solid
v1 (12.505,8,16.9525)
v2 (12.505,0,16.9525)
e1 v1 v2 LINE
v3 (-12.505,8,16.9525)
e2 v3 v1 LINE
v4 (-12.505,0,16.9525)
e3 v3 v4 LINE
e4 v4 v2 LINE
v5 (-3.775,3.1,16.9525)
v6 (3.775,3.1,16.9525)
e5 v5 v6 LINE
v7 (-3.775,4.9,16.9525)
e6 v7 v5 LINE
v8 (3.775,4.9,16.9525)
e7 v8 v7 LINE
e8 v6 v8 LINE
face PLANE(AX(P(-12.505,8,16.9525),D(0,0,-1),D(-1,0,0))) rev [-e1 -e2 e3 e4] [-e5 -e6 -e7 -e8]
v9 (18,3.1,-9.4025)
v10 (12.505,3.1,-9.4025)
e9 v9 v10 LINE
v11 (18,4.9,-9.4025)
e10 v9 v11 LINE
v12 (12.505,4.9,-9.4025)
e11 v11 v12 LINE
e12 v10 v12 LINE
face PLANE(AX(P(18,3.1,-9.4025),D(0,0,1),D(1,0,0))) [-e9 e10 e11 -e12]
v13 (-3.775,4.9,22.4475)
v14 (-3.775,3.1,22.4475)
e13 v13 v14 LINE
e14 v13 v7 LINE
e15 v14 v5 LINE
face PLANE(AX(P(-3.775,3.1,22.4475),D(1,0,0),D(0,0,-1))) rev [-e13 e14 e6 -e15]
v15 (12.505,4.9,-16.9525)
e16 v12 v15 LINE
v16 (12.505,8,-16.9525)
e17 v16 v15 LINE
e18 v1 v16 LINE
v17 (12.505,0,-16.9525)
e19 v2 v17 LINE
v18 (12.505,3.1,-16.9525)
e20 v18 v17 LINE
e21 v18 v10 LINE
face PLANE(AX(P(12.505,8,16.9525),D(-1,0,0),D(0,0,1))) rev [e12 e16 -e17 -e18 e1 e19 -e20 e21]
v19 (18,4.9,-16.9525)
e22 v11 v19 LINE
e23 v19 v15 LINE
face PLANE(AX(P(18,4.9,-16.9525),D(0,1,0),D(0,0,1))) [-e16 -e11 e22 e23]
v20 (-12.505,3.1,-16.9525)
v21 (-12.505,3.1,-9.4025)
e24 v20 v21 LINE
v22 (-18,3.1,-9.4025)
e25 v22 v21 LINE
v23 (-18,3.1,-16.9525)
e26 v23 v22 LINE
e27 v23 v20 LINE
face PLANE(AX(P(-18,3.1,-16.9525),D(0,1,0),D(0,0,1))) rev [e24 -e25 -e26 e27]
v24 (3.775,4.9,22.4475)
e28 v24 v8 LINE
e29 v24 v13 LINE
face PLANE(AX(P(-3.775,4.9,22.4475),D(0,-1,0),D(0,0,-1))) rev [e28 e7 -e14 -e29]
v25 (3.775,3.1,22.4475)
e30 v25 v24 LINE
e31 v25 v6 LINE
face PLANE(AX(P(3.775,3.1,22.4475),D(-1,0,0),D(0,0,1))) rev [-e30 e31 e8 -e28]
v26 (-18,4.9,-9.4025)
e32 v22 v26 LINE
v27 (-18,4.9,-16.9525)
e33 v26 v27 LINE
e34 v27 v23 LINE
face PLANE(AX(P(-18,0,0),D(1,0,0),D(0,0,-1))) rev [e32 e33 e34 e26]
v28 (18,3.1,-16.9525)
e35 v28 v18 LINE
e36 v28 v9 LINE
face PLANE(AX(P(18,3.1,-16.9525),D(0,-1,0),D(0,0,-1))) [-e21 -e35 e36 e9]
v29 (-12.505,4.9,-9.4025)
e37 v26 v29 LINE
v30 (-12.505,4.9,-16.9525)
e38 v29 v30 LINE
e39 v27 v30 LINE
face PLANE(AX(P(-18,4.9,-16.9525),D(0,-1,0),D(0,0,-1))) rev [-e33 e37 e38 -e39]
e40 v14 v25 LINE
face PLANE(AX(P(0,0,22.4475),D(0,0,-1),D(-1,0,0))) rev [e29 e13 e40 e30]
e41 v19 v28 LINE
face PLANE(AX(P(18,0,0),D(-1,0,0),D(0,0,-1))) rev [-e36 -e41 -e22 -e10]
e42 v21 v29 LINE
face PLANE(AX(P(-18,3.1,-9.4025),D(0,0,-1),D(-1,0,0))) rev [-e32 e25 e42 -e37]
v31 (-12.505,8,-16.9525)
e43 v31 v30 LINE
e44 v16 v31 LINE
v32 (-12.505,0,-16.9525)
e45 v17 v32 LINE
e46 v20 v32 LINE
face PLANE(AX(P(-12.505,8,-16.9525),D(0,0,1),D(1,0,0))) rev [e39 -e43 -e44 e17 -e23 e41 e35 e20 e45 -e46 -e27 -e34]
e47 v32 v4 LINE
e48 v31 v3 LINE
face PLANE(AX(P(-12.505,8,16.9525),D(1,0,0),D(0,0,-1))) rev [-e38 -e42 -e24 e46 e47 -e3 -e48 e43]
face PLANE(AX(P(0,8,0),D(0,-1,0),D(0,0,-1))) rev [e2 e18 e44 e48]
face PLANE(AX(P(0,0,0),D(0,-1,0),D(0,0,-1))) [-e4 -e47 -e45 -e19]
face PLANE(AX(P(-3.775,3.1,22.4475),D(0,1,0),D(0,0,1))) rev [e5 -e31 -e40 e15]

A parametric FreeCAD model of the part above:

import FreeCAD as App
import Part
import Sketcher


def add_polygon(sketch, points):
    """Adds a closed chain of lines whose ends are joined by coincident constraints."""
    first, n = sketch.GeometryCount, len(points)
    for a, b in zip(points, points[1:] + points[:1]):
        sketch.addGeometry(Part.LineSegment(App.Vector(*a, 0), App.Vector(*b, 0)), False)
    for i in range(n):
        sketch.addConstraint(Sketcher.Constraint("Coincident", first + i, 2, first + (i + 1) % n, 1))

doc = App.newDocument("Part")
body = doc.addObject("PartDesign::Body", "Body")

sketch1 = body.newObject("Sketcher::SketchObject", "Sketch")
sketch1.AttachmentSupport = (doc.getObject("XZ_Plane"), [""])
sketch1.MapMode = "FlatFace"
add_polygon(sketch1, [(-13, -17), (-13, 17), (13, 17), (13, -17)])
sketch1.addConstraint([
    Sketcher.Constraint("Vertical", 0),
    Sketcher.Constraint("Horizontal", 1),
    Sketcher.Constraint("Vertical", 2),
    Sketcher.Constraint("Horizontal", 3),
    Sketcher.Constraint("Symmetric", 0, 2, 2, 2, -1, 1),
    Sketcher.Constraint("DistanceX", 1, 1, 1, 2, 25.01),
    Sketcher.Constraint("DistanceY", 0, 1, 0, 2, 33.905),
])
pad1 = body.newObject("PartDesign::Pad", "Pad")
pad1.Profile = sketch1
pad1.Length = 8
pad1.Reversed = True

sketch2 = body.newObject("Sketcher::SketchObject", "Sketch001")
sketch2.AttachmentSupport = (doc.getObject("XY_Plane"), [""])
sketch2.MapMode = "FlatFace"
sketch2.AttachmentOffset = App.Placement(App.Vector(0, 0, 16.9525), App.Rotation())
add_polygon(sketch2, [(-3.8, 4.9), (-3.8, 3.1), (3.8, 3.1), (3.8, 4.9)])
sketch2.addConstraint([
    Sketcher.Constraint("Vertical", 0),
    Sketcher.Constraint("Horizontal", 1),
    Sketcher.Constraint("Vertical", 2),
    Sketcher.Constraint("Horizontal", 3),
    Sketcher.Constraint("DistanceY", 0, 2, 0, 1, 1.8),
    Sketcher.Constraint("DistanceX", 1, 1, 1, 2, 7.55),
    Sketcher.Constraint("DistanceY", -1, 1, 0, 2, 3.1),
    Sketcher.Constraint("DistanceX", 0, 2, -1, 1, 3.775),
])
pad2 = body.newObject("PartDesign::Pad", "Pad001")
pad2.Profile = sketch2
pad2.Length = 5.495

sketch3 = body.newObject("Sketcher::SketchObject", "Sketch002")
sketch3.AttachmentSupport = (doc.getObject("YZ_Plane"), [""])
sketch3.MapMode = "FlatFace"
sketch3.AttachmentOffset = App.Placement(App.Vector(0, 0, -12.505), App.Rotation())
add_polygon(sketch3, [(4.9, -17), (3.1, -17), (3.1, -9.4), (4.9, -9.4)])
sketch3.addConstraint([
    Sketcher.Constraint("Horizontal", 0),
    Sketcher.Constraint("Vertical", 1),
    Sketcher.Constraint("Horizontal", 2),
    Sketcher.Constraint("Vertical", 3),
    Sketcher.Constraint("DistanceX", 0, 2, 0, 1, 1.8),
    Sketcher.Constraint("DistanceY", 1, 1, 1, 2, 7.55),
    Sketcher.Constraint("DistanceX", -1, 1, 0, 2, 3.1),
    Sketcher.Constraint("DistanceY", 0, 2, -1, 1, 16.9525),
])
pad3 = body.newObject("PartDesign::Pad", "Pad002")
pad3.Profile = sketch3
pad3.Length = 5.495
pad3.Reversed = True
doc.recompute()

mirrored = body.newObject("PartDesign::Mirrored", "Mirrored")
mirrored.Originals = [pad3]
mirrored.MirrorPlane = (doc.getObject("YZ_Plane"), [""])
body.Tip = mirrored

doc.recompute()
